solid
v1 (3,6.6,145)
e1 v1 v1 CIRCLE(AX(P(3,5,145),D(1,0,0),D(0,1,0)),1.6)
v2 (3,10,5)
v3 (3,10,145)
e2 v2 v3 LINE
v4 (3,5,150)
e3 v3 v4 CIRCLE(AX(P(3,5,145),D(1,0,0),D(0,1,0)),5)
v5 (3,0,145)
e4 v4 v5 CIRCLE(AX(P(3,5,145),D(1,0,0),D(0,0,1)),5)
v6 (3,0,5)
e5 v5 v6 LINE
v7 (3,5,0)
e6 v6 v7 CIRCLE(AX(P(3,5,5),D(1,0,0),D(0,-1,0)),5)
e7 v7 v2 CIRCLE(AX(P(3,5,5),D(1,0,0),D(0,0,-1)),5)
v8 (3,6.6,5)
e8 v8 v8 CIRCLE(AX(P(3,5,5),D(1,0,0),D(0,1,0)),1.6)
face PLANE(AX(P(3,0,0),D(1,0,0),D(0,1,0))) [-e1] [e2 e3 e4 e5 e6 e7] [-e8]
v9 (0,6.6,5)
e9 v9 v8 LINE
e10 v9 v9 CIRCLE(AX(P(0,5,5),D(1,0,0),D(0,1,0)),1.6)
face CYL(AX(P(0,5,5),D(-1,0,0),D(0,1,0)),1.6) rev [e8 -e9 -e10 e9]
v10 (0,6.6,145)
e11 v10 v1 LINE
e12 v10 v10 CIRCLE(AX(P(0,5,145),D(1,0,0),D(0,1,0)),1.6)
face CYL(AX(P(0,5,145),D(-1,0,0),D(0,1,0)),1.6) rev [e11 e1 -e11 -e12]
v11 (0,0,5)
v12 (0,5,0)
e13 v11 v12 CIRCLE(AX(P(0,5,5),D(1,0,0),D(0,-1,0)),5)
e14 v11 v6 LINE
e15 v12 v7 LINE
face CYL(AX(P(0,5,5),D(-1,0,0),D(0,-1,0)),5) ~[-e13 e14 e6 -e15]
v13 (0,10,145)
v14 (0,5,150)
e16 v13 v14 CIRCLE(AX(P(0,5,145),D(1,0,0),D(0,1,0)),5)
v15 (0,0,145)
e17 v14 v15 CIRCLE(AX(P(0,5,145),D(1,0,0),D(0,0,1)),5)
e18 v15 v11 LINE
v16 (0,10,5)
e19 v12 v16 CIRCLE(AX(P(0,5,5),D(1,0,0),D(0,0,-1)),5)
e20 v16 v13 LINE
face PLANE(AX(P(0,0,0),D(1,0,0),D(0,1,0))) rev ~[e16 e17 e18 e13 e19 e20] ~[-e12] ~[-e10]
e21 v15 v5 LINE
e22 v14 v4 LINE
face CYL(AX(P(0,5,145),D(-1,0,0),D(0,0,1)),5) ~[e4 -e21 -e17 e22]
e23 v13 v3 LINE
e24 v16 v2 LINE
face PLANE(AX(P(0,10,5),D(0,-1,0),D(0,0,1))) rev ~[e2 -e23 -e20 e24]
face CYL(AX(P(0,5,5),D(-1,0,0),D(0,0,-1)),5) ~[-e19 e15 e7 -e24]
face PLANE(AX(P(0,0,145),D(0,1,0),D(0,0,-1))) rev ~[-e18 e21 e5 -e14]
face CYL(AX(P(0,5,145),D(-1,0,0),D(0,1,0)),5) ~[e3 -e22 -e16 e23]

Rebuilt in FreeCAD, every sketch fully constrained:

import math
import FreeCAD as App
import Part
import Sketcher

V = App.Vector
Q = App.Units.Quantity

doc = App.newDocument("Part")
body = doc.addObject("PartDesign::Body", "Body")

# Sketch on YZ plane
sketch1 = body.newObject("Sketcher::SketchObject", "Sketch")
sketch1.AttachmentSupport = (doc.getObject("YZ_Plane"), [""])
sketch1.MapMode = "FlatFace"
sketch1.addGeometry(Part.ArcOfCircle(Part.Circle(V(5, 5, 0), V(0, 0, 1), 5), math.radians(180), math.radians(360)), False)
sketch1.addGeometry(Part.LineSegment(V(10, 5, 0), V(10, 145, 0)), False)
sketch1.addGeometry(Part.ArcOfCircle(Part.Circle(V(5, 145, 0), V(0, 0, 1), 5), math.radians(0), math.radians(180)), False)
sketch1.addGeometry(Part.LineSegment(V(0, 145, 0), V(0, 5, 0)), False)
sketch1.addGeometry(Part.Circle(V(5, 5, 0), V(0, 0, 1), 1.6), False)
sketch1.addGeometry(Part.Circle(V(5, 145, 0), V(0, 0, 1), 1.6), False)
sketch1.addConstraint(Sketcher.Constraint("Tangent", 0, 2, 1, 1))
sketch1.addConstraint(Sketcher.Constraint("Tangent", 1, 2, 2, 1))
sketch1.addConstraint(Sketcher.Constraint("Tangent", 2, 2, 3, 1))
sketch1.addConstraint(Sketcher.Constraint("Tangent", 3, 2, 0, 1))
sketch1.addConstraint(Sketcher.Constraint("Vertical", 1))
sketch1.addConstraint(Sketcher.Constraint("Vertical", 3))
sketch1.addConstraint(Sketcher.Constraint("Coincident", 4, 3, 0, 3))
sketch1.addConstraint(Sketcher.Constraint("Coincident", 5, 3, 2, 3))
sketch1.addConstraint(Sketcher.Constraint("Equal", 4, 5))
sketch1.addConstraint(Sketcher.Constraint("PointOnObject", 2, 2, -2))
sketch1.addConstraint(Sketcher.Constraint("Radius", 0, Q("5 mm")))
sketch1.addConstraint(Sketcher.Constraint("Diameter", 4, Q("3.2 mm")))
sketch1.addConstraint(Sketcher.Constraint("DistanceY", 1, 1, 1, 2, Q("140 mm")))
sketch1.addConstraint(Sketcher.Constraint("DistanceY", -1, 1, 0, 3, Q("5 mm")))
pad1 = body.newObject("PartDesign::Pad", "Pad")
pad1.Profile = sketch1
pad1.Length = 3

doc.recompute()
